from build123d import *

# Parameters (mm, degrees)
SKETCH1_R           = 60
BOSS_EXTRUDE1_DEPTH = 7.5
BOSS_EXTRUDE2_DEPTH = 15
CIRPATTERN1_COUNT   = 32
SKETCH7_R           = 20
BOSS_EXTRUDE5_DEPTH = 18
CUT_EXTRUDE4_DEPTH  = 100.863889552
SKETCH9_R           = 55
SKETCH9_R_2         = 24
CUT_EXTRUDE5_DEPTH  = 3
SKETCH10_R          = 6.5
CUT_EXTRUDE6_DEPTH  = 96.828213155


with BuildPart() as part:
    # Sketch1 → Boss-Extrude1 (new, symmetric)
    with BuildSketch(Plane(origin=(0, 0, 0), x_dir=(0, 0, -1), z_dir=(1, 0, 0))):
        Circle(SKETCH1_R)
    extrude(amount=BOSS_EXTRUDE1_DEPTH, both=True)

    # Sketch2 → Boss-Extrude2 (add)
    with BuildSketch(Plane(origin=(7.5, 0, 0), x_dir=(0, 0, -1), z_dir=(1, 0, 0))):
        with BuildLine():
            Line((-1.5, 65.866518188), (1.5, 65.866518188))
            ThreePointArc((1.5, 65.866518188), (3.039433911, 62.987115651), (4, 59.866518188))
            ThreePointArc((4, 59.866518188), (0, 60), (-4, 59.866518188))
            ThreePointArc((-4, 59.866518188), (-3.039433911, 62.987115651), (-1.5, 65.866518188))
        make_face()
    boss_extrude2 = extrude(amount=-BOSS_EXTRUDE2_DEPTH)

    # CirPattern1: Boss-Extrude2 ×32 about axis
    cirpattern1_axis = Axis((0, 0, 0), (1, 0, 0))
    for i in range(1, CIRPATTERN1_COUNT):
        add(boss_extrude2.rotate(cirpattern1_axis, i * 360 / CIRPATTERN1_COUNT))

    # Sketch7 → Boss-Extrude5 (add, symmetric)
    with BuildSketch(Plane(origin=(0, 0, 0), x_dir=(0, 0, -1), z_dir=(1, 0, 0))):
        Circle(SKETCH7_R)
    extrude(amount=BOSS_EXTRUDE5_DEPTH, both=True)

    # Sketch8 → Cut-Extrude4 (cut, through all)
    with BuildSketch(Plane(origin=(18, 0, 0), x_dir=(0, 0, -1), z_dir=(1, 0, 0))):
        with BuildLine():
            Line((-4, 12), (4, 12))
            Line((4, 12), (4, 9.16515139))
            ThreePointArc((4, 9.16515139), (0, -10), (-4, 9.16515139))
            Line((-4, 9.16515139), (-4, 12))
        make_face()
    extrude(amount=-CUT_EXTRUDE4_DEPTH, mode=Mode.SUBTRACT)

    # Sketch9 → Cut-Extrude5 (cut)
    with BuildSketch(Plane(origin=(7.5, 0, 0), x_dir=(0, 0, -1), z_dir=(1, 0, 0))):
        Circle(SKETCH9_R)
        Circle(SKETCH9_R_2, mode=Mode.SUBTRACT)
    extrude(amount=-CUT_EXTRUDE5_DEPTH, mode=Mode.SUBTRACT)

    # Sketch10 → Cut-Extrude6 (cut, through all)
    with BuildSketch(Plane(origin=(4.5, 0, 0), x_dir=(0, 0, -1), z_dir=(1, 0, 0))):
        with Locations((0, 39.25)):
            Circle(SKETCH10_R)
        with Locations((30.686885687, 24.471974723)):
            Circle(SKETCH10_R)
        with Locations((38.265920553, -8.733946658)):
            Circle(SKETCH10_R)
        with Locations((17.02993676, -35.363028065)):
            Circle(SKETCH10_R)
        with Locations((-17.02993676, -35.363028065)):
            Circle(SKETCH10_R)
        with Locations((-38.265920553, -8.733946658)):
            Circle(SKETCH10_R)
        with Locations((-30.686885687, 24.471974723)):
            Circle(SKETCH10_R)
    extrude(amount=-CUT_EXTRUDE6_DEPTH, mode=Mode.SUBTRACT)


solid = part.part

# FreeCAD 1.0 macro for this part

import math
import FreeCAD as App
import Part
import Sketcher
Q = App.Units.Quantity

doc = App.newDocument("Part")
params = doc.addObject("Spreadsheet::Sheet", "Params")
for row, (alias, value) in enumerate([
    ("sketch1_diameter", "120 mm"),
    ("pad1_length", "15 mm"),
    ("sketch2_radius", "17 mm"),
    ("sketch2_radius2", "60 mm"),
    ("sketch2_height", "3 mm"),
    ("pad2_length", "15 mm"),
    ("sketch3_diameter", "40 mm"),
    ("pad3_length", "36 mm"),
    ("sketch4_radius", "10 mm"),
    ("sketch4_height", "8 mm"),
    ("sketch5_diameter", "110 mm"),
    ("sketch5_diameter2", "48 mm"),
    ("pocket2_length", "3 mm"),
    ("sketch6_diameter", "13 mm"),
], start=1):
    params.set(f"A{row}", alias)
    params.set(f"B{row}", "=" + value)
    params.setAlias(f"B{row}", alias)

body = doc.addObject("PartDesign::Body", "Body")

# Sketch on YZ plane
sketch1 = doc.addObject("Sketcher::SketchObject", "Sketch")
body.addObject(sketch1)
sketch1.AttachmentSupport = (doc.YZ_Plane, [""])
sketch1.MapMode = "FlatFace"
sketch1.addGeometry(Part.Circle(App.Vector(0, 0, 0), App.Vector(0, 0, 1), 60), False)
sketch1.addConstraint([
    Sketcher.Constraint("Coincident", 0, 3, -1, 1),
    Sketcher.Constraint("Diameter", 0, Q("120 mm")),
])
sketch1.setExpression("Constraints[1]", "Params.sketch1_diameter")
pad1 = doc.addObject("PartDesign::Pad", "Pad")
body.addObject(pad1)
pad1.Profile = sketch1
pad1.setExpression("Length", "Params.pad1_length")
pad1.Midplane = True

# Sketch on YZ plane
sketch2 = doc.addObject("Sketcher::SketchObject", "Sketch001")
body.addObject(sketch2)
sketch2.AttachmentSupport = (doc.YZ_Plane, [""])
sketch2.MapMode = "FlatFace"
sketch2.AttachmentOffset = App.Placement(App.Vector(0, 0, 7.5), App.Rotation())
sketch2.addGeometry([
    Part.LineSegment(App.Vector(65.9, -1.5, 0), App.Vector(65.9, 1.5, 0)),
    Part.ArcOfCircle(Part.Circle(App.Vector(56.4, -12.7, 0), App.Vector(0, 0, 1), 17), math.radians(56), math.radians(78)),
    Part.ArcOfCircle(Part.Circle(App.Vector(0, 0, 0), App.Vector(0, 0, 1), 60), math.radians(-3.82), math.radians(3.82)),
    Part.ArcOfCircle(Part.Circle(App.Vector(56.4, 12.7, 0), App.Vector(0, 0, 1), 17), math.radians(-78), math.radians(-56)),
], False)
sketch2.addConstraint([
    Sketcher.Constraint("Coincident", 0, 2, 1, 1),
    Sketcher.Constraint("Coincident", 1, 2, 2, 2),
    Sketcher.Constraint("Coincident", 2, 1, 3, 1),
    Sketcher.Constraint("Coincident", 3, 2, 0, 1),
    Sketcher.Constraint("Vertical", 0),
    Sketcher.Constraint("Coincident", 2, 3, -1, 1),
    Sketcher.Constraint("Equal", 1, 3),
    Sketcher.Constraint("Symmetric", 1, 3, 3, 3, -1),
    Sketcher.Constraint("Radius", 1, Q("17 mm")),
    Sketcher.Constraint("Radius", 2, Q("60 mm")),
    Sketcher.Constraint("DistanceY", 0, 1, 0, 2, Q("3 mm")),
    Sketcher.Constraint("DistanceY", -1, 1, 1, 2, Q("4 mm")),
    Sketcher.Constraint("DistanceX", 1, 2, 0, 2, Q("6 mm")),
])
sketch2.setExpression("Constraints[8]", "Params.sketch2_radius")
sketch2.setExpression("Constraints[9]", "Params.sketch2_radius2")
sketch2.setExpression("Constraints[10]", "Params.sketch2_height")
pad2 = doc.addObject("PartDesign::Pad", "Pad001")
body.addObject(pad2)
pad2.Profile = sketch2
pad2.setExpression("Length", "Params.pad2_length")
pad2.Reversed = True
doc.recompute()

polarpattern = doc.addObject("PartDesign::PolarPattern", "PolarPattern")
body.addObject(polarpattern)
polarpattern.Originals = [pad2]
polarpattern.Axis = (doc.X_Axis, [""])
polarpattern.Angle = 360
polarpattern.Occurrences = 32
body.Tip = polarpattern

# Sketch on YZ plane
sketch3 = doc.addObject("Sketcher::SketchObject", "Sketch002")
body.addObject(sketch3)
sketch3.AttachmentSupport = (doc.YZ_Plane, [""])
sketch3.MapMode = "FlatFace"
sketch3.addGeometry(Part.Circle(App.Vector(0, 0, 0), App.Vector(0, 0, 1), 20), False)
sketch3.addConstraint([
    Sketcher.Constraint("Coincident", 0, 3, -1, 1),
    Sketcher.Constraint("Diameter", 0, Q("40 mm")),
])
sketch3.setExpression("Constraints[1]", "Params.sketch3_diameter")
pad3 = doc.addObject("PartDesign::Pad", "Pad002")
body.addObject(pad3)
pad3.Profile = sketch3
pad3.setExpression("Length", "Params.pad3_length")
pad3.Midplane = True

# Sketch on YZ plane
sketch4 = doc.addObject("Sketcher::SketchObject", "Sketch003")
body.addObject(sketch4)
sketch4.AttachmentSupport = (doc.YZ_Plane, [""])
sketch4.MapMode = "FlatFace"
sketch4.AttachmentOffset = App.Placement(App.Vector(0, 0, 18), App.Rotation())
sketch4.addGeometry([
    Part.LineSegment(App.Vector(12, -4, 0), App.Vector(12, 4, 0)),
    Part.LineSegment(App.Vector(12, 4, 0), App.Vector(9.2, 4, 0)),
    Part.ArcOfCircle(Part.Circle(App.Vector(0, 0, 0), App.Vector(0, 0, 1), 10), math.radians(24), math.radians(336)),
    Part.LineSegment(App.Vector(9.2, -4, 0), App.Vector(12, -4, 0)),
], False)
sketch4.addConstraint([
    Sketcher.Constraint("Coincident", 0, 2, 1, 1),
    Sketcher.Constraint("Coincident", 1, 2, 2, 1),
    Sketcher.Constraint("Coincident", 2, 2, 3, 1),
    Sketcher.Constraint("Coincident", 3, 2, 0, 1),
    Sketcher.Constraint("Vertical", 0),
    Sketcher.Constraint("Horizontal", 1),
    Sketcher.Constraint("Horizontal", 3),
    Sketcher.Constraint("Coincident", 2, 3, -1, 1),
    Sketcher.Constraint("Vertical", 1, 2, 2, 2),
    Sketcher.Constraint("Radius", 2, Q("10 mm")),
    Sketcher.Constraint("DistanceY", 0, 1, 0, 2, Q("8 mm")),
    Sketcher.Constraint("DistanceX", -1, 1, 0, 2, Q("12 mm")),
])
sketch4.setExpression("Constraints[9]", "Params.sketch4_radius")
sketch4.setExpression("Constraints[10]", "Params.sketch4_height")
pocket1 = doc.addObject("PartDesign::Pocket", "Pocket")
body.addObject(pocket1)
pocket1.Profile = sketch4
pocket1.Type = "ThroughAll"

# Sketch on YZ plane
sketch5 = doc.addObject("Sketcher::SketchObject", "Sketch004")
body.addObject(sketch5)
sketch5.AttachmentSupport = (doc.YZ_Plane, [""])
sketch5.MapMode = "FlatFace"
sketch5.AttachmentOffset = App.Placement(App.Vector(0, 0, 7.5), App.Rotation())
sketch5.addGeometry([
    Part.Circle(App.Vector(0, 0, 0), App.Vector(0, 0, 1), 55),
    Part.Circle(App.Vector(0, 0, 0), App.Vector(0, 0, 1), 24),
], False)
sketch5.addConstraint([
    Sketcher.Constraint("Coincident", 0, 3, -1, 1),
    Sketcher.Constraint("Coincident", 1, 3, -1, 1),
    Sketcher.Constraint("Diameter", 0, Q("110 mm")),
    Sketcher.Constraint("Diameter", 1, Q("48 mm")),
])
sketch5.setExpression("Constraints[2]", "Params.sketch5_diameter")
sketch5.setExpression("Constraints[3]", "Params.sketch5_diameter2")
pocket2 = doc.addObject("PartDesign::Pocket", "Pocket001")
body.addObject(pocket2)
pocket2.Profile = sketch5
pocket2.setExpression("Length", "Params.pocket2_length")

# Sketch on YZ plane
sketch6 = doc.addObject("Sketcher::SketchObject", "Sketch005")
body.addObject(sketch6)
sketch6.AttachmentSupport = (doc.YZ_Plane, [""])
sketch6.MapMode = "FlatFace"
sketch6.AttachmentOffset = App.Placement(App.Vector(0, 0, 4.5), App.Rotation())
sketch6.addGeometry([
    Part.Circle(App.Vector(39, 0, 0), App.Vector(0, 0, 1), 6),  # 0
    Part.Circle(App.Vector(24, -31, 0), App.Vector(0, 0, 1), 6),  # 1
    Part.Circle(App.Vector(-9, -38, 0), App.Vector(0, 0, 1), 6),  # 2
    Part.Circle(App.Vector(-35, -17, 0), App.Vector(0, 0, 1), 6),  # 3
    Part.Circle(App.Vector(-35, 17, 0), App.Vector(0, 0, 1), 6),  # 4
    Part.Circle(App.Vector(-9, 38, 0), App.Vector(0, 0, 1), 6),  # 5
    Part.Circle(App.Vector(24, 31, 0), App.Vector(0, 0, 1), 6),  # 6
], False)
sketch6.addConstraint([
    Sketcher.Constraint("Equal", 0, 1),
    Sketcher.Constraint("Equal", 1, 2),
    Sketcher.Constraint("Equal", 2, 3),
    Sketcher.Constraint("Equal", 3, 4),
    Sketcher.Constraint("Equal", 4, 5),
    Sketcher.Constraint("Equal", 5, 6),
    Sketcher.Constraint("Symmetric", 3, 3, 4, 3, -1),
    Sketcher.Constraint("Symmetric", 2, 3, 5, 3, -1),
    Sketcher.Constraint("Symmetric", 1, 3, 6, 3, -1),
    Sketcher.Constraint("PointOnObject", 0, 3, -1),
    Sketcher.Constraint("Diameter", 0, Q("13 mm")),
    Sketcher.Constraint("DistanceX", -1, 1, 0, 3, Q("39.25 mm")),
    Sketcher.Constraint("DistanceY", 2, 3, -1, 1, Q("38.265921 mm")),
    Sketcher.Constraint("DistanceX", 3, 3, -1, 1, Q("35.363028 mm")),
    Sketcher.Constraint("DistanceX", 2, 3, 1, 3, Q("33.205921 mm")),
    Sketcher.Constraint("DistanceX", 3, 3, 2, 3, Q("26.629081 mm")),
    Sketcher.Constraint("DistanceY", 1, 3, 3, 3, Q("13.656949 mm")),
    Sketcher.Constraint("DistanceY", 1, 3, 6, 3, Q("61.373771 mm")),
])
sketch6.setExpression("Constraints[10]", "Params.sketch6_diameter")
pocket3 = doc.addObject("PartDesign::Pocket", "Pocket002")
body.addObject(pocket3)
pocket3.Profile = sketch6
pocket3.Type = "ThroughAll"

doc.recompute()
